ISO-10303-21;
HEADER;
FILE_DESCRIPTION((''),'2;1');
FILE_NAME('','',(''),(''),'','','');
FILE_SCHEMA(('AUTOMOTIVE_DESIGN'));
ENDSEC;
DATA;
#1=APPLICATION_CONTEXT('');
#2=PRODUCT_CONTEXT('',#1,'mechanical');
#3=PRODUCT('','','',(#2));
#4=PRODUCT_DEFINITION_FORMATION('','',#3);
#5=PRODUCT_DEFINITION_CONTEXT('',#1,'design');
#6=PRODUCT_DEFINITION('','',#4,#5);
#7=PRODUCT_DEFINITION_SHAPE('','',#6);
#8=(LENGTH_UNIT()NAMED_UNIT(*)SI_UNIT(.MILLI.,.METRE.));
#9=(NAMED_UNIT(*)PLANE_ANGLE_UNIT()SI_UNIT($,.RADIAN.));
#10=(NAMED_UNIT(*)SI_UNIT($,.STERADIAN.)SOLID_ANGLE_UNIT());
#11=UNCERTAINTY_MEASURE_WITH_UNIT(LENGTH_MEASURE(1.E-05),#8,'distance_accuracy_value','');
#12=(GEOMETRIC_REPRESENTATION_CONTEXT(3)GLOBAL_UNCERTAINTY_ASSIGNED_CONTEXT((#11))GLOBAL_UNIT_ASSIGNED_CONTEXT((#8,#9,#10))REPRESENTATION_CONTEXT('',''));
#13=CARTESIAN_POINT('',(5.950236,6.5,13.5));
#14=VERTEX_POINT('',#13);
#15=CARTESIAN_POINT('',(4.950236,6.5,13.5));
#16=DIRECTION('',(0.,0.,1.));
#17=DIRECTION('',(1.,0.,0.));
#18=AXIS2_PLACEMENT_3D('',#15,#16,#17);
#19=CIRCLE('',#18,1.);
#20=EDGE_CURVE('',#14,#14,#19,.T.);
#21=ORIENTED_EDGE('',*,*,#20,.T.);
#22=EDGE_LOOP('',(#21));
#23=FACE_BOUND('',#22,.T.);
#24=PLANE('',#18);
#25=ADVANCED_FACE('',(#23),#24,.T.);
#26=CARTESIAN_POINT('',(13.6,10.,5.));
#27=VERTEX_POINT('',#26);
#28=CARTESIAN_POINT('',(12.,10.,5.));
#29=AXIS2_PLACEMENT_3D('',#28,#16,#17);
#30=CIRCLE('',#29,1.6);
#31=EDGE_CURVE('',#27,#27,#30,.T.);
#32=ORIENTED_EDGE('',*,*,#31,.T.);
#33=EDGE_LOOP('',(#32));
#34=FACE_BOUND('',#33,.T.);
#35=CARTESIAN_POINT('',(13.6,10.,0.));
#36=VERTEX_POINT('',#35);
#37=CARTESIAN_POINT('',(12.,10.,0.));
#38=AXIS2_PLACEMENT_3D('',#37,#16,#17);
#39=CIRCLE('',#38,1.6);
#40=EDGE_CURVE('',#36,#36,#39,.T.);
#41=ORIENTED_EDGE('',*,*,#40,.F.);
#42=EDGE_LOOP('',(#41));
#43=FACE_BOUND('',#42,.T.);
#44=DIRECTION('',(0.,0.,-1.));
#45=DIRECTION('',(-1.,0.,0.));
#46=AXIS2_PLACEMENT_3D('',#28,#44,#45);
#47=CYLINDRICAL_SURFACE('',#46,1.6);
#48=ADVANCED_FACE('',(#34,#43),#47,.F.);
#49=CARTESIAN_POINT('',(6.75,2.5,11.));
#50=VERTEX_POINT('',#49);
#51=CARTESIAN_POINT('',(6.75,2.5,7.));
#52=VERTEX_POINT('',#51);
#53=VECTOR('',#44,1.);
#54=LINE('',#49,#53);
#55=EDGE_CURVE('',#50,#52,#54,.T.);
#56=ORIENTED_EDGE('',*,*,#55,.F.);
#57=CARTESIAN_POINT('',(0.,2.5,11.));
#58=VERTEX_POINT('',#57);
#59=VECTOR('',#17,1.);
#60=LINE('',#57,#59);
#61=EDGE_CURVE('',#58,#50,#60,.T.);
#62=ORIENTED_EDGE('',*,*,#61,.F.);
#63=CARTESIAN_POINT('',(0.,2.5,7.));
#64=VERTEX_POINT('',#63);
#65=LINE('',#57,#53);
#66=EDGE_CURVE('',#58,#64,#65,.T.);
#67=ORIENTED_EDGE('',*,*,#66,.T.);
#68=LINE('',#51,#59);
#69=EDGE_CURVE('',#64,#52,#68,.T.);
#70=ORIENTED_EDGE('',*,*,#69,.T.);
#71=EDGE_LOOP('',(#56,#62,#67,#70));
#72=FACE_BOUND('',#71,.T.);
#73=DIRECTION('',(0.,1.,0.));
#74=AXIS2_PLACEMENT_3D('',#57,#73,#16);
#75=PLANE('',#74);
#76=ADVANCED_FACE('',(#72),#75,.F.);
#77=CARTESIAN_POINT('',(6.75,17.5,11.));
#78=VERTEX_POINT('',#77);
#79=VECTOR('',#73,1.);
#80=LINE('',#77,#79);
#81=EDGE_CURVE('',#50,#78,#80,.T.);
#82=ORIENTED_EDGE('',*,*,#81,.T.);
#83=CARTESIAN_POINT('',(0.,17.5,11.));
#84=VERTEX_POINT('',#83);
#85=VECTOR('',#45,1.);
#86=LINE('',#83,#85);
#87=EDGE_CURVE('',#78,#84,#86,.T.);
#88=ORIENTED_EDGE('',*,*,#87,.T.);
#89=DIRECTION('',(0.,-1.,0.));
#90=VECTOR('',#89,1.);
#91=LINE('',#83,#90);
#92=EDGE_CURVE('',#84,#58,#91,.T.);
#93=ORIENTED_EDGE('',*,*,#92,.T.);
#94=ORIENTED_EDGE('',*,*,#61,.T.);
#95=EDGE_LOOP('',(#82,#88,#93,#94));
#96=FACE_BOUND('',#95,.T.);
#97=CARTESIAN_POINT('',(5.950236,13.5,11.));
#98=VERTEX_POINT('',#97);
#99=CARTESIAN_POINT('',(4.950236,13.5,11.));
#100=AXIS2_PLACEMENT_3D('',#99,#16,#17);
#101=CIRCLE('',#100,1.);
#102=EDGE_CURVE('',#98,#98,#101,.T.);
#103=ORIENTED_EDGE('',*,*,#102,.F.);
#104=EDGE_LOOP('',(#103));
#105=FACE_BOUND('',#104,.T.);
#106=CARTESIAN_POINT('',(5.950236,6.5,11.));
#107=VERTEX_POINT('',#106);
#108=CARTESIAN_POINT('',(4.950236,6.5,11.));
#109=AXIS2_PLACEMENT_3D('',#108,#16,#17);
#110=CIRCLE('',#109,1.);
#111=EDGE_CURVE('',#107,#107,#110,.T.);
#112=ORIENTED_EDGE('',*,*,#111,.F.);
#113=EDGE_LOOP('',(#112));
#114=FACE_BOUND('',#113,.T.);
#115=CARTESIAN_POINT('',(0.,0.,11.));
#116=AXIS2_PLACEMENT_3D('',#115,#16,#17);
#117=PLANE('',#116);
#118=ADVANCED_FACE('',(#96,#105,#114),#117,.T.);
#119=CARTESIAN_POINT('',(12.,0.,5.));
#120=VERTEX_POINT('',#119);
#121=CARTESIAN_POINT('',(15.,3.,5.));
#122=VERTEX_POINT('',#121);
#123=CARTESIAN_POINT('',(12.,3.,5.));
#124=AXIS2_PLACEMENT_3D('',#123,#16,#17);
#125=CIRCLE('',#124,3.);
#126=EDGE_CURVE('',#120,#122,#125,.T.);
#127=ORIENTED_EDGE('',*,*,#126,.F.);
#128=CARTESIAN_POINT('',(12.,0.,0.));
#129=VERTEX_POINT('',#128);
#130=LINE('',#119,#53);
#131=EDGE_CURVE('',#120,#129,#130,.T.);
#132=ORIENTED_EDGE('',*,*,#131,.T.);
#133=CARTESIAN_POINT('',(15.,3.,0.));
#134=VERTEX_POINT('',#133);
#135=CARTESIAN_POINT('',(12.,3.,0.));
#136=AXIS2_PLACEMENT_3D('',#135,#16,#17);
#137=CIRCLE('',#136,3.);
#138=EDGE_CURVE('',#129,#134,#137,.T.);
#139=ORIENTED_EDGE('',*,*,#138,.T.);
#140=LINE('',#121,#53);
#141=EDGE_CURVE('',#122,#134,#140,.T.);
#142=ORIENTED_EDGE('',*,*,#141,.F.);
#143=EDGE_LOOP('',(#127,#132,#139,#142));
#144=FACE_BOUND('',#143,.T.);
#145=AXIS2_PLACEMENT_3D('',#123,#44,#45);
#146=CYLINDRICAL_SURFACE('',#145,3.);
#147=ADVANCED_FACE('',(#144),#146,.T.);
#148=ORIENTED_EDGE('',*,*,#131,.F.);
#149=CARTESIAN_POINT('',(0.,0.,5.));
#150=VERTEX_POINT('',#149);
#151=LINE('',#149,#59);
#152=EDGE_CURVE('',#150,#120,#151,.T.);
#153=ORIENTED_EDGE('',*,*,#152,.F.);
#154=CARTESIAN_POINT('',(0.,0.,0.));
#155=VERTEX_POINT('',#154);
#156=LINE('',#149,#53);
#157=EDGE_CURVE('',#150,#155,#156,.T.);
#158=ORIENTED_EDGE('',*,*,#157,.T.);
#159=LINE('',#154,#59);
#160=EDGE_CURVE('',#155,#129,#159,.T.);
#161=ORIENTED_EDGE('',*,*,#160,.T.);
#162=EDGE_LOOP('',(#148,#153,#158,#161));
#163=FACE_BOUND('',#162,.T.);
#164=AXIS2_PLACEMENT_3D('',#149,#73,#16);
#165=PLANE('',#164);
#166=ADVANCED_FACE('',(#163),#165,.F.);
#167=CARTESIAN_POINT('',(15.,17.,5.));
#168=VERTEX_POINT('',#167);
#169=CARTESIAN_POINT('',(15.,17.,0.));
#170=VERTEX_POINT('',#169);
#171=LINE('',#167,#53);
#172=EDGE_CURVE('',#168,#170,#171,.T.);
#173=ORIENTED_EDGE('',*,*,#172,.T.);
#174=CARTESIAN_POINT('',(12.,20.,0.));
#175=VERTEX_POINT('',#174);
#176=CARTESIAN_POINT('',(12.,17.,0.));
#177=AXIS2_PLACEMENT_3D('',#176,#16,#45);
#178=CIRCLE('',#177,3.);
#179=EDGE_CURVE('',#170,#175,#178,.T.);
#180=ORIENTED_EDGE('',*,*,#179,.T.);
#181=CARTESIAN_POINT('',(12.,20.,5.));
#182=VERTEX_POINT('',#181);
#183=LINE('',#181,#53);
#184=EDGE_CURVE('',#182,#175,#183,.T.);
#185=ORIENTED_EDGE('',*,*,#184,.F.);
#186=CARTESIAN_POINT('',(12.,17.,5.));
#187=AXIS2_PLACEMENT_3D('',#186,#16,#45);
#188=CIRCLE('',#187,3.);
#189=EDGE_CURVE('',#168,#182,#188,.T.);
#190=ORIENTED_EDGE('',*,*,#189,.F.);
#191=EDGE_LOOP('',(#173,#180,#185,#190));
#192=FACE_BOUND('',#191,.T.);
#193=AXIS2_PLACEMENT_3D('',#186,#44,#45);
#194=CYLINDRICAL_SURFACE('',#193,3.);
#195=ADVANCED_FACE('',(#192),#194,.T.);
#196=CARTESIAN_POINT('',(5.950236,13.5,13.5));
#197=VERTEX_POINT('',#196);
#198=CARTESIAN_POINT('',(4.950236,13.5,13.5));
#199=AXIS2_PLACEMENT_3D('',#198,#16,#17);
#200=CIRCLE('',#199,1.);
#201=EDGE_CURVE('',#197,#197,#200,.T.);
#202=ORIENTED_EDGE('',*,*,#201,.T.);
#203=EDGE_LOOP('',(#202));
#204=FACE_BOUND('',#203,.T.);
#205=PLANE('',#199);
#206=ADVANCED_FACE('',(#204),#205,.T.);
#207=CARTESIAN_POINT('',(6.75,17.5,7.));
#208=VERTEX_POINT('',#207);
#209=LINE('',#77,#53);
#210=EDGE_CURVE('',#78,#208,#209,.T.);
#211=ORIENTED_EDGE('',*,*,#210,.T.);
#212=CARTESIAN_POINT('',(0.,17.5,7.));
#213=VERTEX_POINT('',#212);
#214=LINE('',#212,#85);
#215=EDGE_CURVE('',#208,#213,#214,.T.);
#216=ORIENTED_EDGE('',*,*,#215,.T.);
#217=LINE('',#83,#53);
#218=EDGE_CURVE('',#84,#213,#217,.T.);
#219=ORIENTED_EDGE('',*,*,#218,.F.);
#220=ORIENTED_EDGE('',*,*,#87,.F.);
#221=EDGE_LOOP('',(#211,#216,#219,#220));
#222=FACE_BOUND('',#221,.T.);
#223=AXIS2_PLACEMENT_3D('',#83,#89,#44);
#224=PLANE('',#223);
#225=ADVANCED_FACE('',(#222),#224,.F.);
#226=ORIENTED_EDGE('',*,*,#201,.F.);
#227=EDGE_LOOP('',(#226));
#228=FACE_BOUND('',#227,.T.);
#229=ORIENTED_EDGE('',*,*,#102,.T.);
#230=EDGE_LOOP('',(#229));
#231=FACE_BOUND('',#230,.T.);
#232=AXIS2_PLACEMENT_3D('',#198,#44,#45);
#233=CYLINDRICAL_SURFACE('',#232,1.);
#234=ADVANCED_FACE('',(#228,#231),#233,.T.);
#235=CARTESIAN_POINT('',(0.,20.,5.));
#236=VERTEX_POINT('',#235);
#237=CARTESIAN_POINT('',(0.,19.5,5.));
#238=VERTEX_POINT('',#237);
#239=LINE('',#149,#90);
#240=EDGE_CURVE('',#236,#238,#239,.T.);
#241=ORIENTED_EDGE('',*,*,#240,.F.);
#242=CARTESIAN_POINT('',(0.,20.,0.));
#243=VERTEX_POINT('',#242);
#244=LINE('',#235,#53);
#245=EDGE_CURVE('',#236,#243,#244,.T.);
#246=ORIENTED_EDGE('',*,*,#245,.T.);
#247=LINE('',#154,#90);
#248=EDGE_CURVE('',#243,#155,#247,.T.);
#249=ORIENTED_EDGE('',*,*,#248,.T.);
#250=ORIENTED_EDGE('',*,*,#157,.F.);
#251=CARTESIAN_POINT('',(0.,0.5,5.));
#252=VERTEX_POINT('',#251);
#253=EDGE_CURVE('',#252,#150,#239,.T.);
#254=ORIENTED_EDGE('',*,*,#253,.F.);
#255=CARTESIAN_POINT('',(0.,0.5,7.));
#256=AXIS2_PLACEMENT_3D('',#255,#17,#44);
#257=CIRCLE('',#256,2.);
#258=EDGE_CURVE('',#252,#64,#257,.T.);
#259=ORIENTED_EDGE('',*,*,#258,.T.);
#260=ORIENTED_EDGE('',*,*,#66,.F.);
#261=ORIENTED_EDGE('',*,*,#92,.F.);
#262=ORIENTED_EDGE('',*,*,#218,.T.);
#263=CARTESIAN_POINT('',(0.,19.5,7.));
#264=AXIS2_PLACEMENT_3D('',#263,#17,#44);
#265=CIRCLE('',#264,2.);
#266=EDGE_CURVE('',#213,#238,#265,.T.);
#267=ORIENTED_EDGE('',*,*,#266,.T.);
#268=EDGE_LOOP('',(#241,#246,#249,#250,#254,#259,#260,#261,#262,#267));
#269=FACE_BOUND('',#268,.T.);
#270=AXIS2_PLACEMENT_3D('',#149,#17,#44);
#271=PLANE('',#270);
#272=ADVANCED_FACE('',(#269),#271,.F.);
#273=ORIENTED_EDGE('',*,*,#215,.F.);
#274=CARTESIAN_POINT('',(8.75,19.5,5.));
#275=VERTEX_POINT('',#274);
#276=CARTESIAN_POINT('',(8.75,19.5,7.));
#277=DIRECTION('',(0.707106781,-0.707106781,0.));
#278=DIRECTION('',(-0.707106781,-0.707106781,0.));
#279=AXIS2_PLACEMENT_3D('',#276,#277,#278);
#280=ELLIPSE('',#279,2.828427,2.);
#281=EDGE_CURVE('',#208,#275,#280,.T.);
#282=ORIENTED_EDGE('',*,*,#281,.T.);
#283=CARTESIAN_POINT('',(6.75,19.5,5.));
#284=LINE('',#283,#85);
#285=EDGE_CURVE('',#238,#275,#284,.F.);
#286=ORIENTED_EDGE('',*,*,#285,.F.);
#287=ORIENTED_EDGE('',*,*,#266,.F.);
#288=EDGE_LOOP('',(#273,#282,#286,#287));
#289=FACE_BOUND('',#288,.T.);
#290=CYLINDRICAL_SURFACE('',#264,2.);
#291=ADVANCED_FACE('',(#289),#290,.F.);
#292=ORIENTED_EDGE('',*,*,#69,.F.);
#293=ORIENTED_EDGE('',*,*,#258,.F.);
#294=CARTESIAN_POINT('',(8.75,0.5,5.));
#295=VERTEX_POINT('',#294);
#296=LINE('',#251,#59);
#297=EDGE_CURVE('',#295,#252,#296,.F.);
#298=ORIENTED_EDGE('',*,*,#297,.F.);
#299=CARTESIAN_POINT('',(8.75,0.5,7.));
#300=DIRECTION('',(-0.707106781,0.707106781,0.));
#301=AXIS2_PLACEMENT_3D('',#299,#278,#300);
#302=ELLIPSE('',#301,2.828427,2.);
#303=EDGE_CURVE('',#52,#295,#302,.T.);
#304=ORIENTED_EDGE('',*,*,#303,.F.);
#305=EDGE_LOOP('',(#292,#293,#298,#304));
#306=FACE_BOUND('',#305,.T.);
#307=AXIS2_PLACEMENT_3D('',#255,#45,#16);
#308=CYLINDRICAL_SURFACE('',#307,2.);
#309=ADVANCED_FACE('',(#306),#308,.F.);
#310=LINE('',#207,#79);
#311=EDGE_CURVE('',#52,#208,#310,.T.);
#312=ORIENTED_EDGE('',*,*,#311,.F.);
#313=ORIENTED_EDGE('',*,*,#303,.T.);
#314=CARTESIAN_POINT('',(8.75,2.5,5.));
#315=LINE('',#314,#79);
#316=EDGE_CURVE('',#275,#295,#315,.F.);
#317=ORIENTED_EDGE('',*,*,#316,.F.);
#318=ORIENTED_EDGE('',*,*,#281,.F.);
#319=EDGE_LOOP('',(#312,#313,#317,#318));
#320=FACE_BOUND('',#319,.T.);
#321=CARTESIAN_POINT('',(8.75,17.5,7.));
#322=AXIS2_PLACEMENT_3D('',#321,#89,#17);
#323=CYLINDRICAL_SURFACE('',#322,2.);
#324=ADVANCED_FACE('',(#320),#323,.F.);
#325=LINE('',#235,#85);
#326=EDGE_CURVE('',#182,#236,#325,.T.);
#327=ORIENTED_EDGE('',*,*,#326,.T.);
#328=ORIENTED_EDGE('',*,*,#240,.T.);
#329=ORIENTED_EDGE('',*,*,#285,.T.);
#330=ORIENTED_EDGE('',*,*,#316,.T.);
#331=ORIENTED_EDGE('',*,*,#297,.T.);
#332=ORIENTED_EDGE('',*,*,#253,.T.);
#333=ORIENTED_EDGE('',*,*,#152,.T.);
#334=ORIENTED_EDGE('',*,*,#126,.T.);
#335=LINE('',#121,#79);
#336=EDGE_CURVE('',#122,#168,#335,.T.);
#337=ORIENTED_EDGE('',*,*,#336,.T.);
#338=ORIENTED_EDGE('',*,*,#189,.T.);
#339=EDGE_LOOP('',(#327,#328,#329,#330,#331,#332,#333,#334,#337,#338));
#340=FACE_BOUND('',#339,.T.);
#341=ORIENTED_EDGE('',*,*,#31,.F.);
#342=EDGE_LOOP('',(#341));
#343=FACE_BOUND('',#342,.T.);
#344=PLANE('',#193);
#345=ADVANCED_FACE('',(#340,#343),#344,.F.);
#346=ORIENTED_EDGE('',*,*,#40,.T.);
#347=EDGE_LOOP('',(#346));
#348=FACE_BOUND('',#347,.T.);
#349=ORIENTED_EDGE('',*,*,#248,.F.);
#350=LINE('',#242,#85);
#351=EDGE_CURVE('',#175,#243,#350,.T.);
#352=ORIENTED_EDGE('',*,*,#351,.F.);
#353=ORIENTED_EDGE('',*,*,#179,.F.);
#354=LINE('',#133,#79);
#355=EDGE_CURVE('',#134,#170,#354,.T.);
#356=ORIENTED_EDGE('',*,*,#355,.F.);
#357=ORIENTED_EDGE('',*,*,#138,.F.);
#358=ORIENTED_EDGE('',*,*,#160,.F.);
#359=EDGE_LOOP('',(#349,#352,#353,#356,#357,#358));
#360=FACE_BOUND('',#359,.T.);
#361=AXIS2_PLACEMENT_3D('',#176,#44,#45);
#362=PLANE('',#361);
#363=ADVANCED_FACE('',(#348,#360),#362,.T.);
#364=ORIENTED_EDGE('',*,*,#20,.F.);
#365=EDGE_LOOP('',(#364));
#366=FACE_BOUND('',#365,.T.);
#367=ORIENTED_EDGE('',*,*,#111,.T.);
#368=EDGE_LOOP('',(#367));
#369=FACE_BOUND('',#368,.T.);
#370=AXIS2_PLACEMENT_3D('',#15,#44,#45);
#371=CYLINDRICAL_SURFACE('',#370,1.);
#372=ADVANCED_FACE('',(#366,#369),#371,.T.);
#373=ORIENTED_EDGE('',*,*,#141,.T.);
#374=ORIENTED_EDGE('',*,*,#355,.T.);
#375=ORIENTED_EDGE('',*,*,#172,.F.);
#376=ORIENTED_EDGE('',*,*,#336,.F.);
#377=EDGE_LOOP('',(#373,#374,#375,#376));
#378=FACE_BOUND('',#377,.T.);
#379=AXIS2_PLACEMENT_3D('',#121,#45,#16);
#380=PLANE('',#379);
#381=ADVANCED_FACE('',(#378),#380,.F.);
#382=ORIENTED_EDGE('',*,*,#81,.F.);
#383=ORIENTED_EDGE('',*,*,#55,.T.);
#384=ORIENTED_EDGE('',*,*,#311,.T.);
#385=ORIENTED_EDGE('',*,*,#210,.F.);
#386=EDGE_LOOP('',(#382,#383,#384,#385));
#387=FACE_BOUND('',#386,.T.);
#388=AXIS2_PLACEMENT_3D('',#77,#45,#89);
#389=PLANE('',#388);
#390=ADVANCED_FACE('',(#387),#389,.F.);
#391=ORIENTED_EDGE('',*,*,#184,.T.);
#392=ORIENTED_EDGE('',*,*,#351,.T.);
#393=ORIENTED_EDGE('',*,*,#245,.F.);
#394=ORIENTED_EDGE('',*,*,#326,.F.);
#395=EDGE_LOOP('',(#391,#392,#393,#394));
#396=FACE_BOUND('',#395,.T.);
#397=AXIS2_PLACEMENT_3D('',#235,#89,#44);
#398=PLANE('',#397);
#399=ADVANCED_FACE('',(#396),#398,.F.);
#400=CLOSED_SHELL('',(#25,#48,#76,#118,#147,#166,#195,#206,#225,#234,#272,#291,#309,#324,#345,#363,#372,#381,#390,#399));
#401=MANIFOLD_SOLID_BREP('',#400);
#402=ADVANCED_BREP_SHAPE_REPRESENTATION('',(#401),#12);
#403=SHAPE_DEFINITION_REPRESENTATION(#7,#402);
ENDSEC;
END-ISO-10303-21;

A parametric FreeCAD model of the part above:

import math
import FreeCAD as App
import Part
import Sketcher
from FreeCAD import Vector


def edges_at(feature, points):
    """Names of the edges that pass closest to the given points."""
    edges = feature.Shape.Edges
    near = lambda p: min(range(len(edges)), key=lambda i: edges[i].distToShape(Part.Vertex(*p))[0])
    return sorted({f"Edge{near(p) + 1}" for p in points})

doc = App.newDocument("Part")
body = doc.addObject("PartDesign::Body", "Body")

# Sketch on XY plane
sketch1 = body.newObject("Sketcher::SketchObject", "Sketch")
sketch1.AttachmentSupport = (doc.getObject("XY_Plane"), [""])
sketch1.MapMode = "FlatFace"
sketch1.addGeometry([
    Part.LineSegment(Vector(0, 0, 0), Vector(12, 0, 0)),  # 0
    Part.ArcOfCircle(Part.Circle(Vector(12, 3, 0), Vector(0, 0, 1), 3), math.radians(-90), math.radians(0)),  # 1
    Part.LineSegment(Vector(15, 3, 0), Vector(15, 17, 0)),  # 2
    Part.ArcOfCircle(Part.Circle(Vector(12, 17, 0), Vector(0, 0, 1), 3), math.radians(0), math.radians(90)),  # 3
    Part.LineSegment(Vector(12, 20, 0), Vector(0, 20, 0)),  # 4
    Part.LineSegment(Vector(0, 20, 0), Vector(0, 0, 0)),  # 5
    Part.Circle(Vector(12, 10, 0), Vector(0, 0, 1), 1.6),  # 6
], False)
sketch1.addConstraint([
    Sketcher.Constraint("Tangent", 0, 2, 1, 1),
    Sketcher.Constraint("Tangent", 1, 2, 2, 1),
    Sketcher.Constraint("Tangent", 2, 2, 3, 1),
    Sketcher.Constraint("Tangent", 3, 2, 4, 1),
    Sketcher.Constraint("Coincident", 4, 2, 5, 1),
    Sketcher.Constraint("Coincident", 5, 2, 0, 1),
    Sketcher.Constraint("Horizontal", 0),
    Sketcher.Constraint("Vertical", 2),
    Sketcher.Constraint("Horizontal", 4),
    Sketcher.Constraint("Vertical", 5),
    Sketcher.Constraint("Coincident", 5, 2, -1, 1),
    Sketcher.Constraint("Equal", 1, 3),
    Sketcher.Constraint("Vertical", 3, 3, 6, 3),
    Sketcher.Constraint("Radius", 1, 3.0),
    Sketcher.Constraint("Diameter", 6, 3.2),
    Sketcher.Constraint("DistanceX", 0, 1, 0, 2, 12.0),
    Sketcher.Constraint("DistanceY", 2, 1, 2, 2, 14.0),
    Sketcher.Constraint("DistanceY", -1, 1, 6, 3, 10.0),
])
pad1 = body.newObject("PartDesign::Pad", "Pad")
pad1.Profile = sketch1
pad1.Length = 5

# Sketch on XY plane
sketch2 = body.newObject("Sketcher::SketchObject", "Sketch001")
sketch2.AttachmentSupport = (doc.getObject("XY_Plane"), [""])
sketch2.MapMode = "FlatFace"
sketch2.AttachmentOffset = App.Placement(Vector(0, 0, 5), App.Rotation())
sketch2.addGeometry([
    Part.LineSegment(Vector(0, 18, 0), Vector(0, 2, 0)),
    Part.LineSegment(Vector(0, 2, 0), Vector(7, 2, 0)),
    Part.LineSegment(Vector(7, 2, 0), Vector(7, 18, 0)),
    Part.LineSegment(Vector(7, 18, 0), Vector(0, 18, 0)),
], False)
sketch2.addConstraint([
    Sketcher.Constraint("Coincident", 0, 2, 1, 1),
    Sketcher.Constraint("Coincident", 1, 2, 2, 1),
    Sketcher.Constraint("Coincident", 2, 2, 3, 1),
    Sketcher.Constraint("Coincident", 3, 2, 0, 1),
    Sketcher.Constraint("Vertical", 0),
    Sketcher.Constraint("Horizontal", 1),
    Sketcher.Constraint("Vertical", 2),
    Sketcher.Constraint("Horizontal", 3),
    Sketcher.Constraint("PointOnObject", 0, 2, -2),
    Sketcher.Constraint("DistanceY", 0, 2, 0, 1, 15.0),
    Sketcher.Constraint("DistanceX", 1, 1, 1, 2, 6.75),
    Sketcher.Constraint("DistanceY", -1, 1, 0, 2, 2.5),
])
pad2 = body.newObject("PartDesign::Pad", "Pad001")
pad2.Profile = sketch2
pad2.Length = 6
doc.recompute()

fillet = body.newObject("PartDesign::Fillet", "Fillet")
fillet.Base = (pad2, edges_at(pad2, [(3.375, 2.5, 5), (6.75, 10, 5), (3.375, 17.5, 5)]))
fillet.Radius = 2

# Sketch on XY plane
sketch3 = body.newObject("Sketcher::SketchObject", "Sketch002")
sketch3.AttachmentSupport = (doc.getObject("XY_Plane"), [""])
sketch3.MapMode = "FlatFace"
sketch3.AttachmentOffset = App.Placement(Vector(0, 0, 11), App.Rotation())
sketch3.addGeometry([
    Part.Circle(Vector(5, 13.5, 0), Vector(0, 0, 1), 1),
    Part.Circle(Vector(5, 6.5, 0), Vector(0, 0, 1), 1),
], False)
sketch3.addConstraint([
    Sketcher.Constraint("Equal", 0, 1),
    Sketcher.Constraint("Vertical", 0, 3, 1, 3),
    Sketcher.Constraint("Diameter", 0, 2.0),
    Sketcher.Constraint("DistanceY", 1, 3, 0, 3, 7.0),
    Sketcher.Constraint("DistanceY", -1, 1, 0, 3, 13.5),
    Sketcher.Constraint("DistanceX", -1, 1, 0, 3, 4.950236),
])
pad3 = body.newObject("PartDesign::Pad", "Pad002")
pad3.Profile = sketch3
pad3.Length = 2.5

doc.recompute()
